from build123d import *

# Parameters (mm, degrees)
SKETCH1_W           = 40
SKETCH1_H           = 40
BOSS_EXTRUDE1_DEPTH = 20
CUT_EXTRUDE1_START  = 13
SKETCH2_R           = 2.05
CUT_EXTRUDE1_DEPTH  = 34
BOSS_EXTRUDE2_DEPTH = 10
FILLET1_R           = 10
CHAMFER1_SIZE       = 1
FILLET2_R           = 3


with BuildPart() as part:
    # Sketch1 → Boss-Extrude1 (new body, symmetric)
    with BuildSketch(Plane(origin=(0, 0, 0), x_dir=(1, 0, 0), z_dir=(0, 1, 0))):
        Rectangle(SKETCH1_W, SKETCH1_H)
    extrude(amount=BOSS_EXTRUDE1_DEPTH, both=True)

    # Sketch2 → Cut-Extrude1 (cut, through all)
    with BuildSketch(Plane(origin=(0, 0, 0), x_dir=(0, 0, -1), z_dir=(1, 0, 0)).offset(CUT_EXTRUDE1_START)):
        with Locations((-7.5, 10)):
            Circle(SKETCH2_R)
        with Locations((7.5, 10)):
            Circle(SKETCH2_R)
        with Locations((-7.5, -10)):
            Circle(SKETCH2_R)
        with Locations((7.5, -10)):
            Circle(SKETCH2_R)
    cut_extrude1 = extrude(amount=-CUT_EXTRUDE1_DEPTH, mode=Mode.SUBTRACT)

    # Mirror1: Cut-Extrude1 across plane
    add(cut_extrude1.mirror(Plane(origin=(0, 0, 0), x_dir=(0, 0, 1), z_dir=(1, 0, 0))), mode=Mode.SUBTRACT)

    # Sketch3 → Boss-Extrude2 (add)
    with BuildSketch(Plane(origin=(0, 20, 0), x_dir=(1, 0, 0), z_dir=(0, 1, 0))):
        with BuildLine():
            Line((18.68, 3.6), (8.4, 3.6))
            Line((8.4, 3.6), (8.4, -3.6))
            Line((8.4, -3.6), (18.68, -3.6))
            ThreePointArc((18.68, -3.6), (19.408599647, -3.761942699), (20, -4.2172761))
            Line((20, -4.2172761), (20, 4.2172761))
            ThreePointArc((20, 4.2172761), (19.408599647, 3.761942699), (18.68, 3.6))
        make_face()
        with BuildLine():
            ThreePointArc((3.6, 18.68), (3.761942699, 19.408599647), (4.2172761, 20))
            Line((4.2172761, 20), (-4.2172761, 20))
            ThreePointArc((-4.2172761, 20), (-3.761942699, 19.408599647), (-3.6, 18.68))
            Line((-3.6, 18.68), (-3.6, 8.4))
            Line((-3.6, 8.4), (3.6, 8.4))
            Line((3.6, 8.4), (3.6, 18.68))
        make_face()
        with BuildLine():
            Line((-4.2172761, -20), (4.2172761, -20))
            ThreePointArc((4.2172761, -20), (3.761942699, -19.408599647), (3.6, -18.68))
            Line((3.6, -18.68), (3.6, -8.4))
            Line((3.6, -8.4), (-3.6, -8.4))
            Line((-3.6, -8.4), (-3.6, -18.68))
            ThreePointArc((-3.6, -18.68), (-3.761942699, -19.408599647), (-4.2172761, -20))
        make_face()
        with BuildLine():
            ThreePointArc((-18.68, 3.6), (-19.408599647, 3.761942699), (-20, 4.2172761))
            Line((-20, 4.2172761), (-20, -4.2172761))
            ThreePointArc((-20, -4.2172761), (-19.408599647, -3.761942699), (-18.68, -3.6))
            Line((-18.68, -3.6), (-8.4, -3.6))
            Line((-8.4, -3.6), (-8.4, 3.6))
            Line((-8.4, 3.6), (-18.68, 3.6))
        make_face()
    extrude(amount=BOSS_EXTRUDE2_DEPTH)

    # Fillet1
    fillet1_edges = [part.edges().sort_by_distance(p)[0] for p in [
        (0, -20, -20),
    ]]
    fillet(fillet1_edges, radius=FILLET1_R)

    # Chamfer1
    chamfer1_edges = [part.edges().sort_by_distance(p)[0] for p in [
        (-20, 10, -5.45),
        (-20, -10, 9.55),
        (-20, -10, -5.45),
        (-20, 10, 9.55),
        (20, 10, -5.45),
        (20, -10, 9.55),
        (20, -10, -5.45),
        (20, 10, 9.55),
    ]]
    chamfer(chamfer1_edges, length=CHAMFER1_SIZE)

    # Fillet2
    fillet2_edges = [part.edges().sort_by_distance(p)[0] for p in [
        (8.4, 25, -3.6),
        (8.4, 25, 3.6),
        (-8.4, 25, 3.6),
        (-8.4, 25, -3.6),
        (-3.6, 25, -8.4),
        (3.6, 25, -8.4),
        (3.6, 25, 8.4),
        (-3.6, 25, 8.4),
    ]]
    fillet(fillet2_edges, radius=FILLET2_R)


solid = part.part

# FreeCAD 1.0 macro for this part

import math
import FreeCAD as App
import Part
import Sketcher


def edges_at(feature, points):
    """Names of the edges that pass closest to the given points."""
    edges = feature.Shape.Edges
    near = lambda p: min(range(len(edges)), key=lambda i: edges[i].distToShape(Part.Vertex(*p))[0])
    return sorted({f"Edge{near(p) + 1}" for p in points})


def add_polygon(sketch, points):
    """Adds a closed chain of lines whose ends are joined by coincident constraints."""
    first, n = sketch.GeometryCount, len(points)
    for a, b in zip(points, points[1:] + points[:1]):
        sketch.addGeometry(Part.LineSegment(App.Vector(*a, 0), App.Vector(*b, 0)), False)
    for i in range(n):
        sketch.addConstraint(Sketcher.Constraint("Coincident", first + i, 2, first + (i + 1) % n, 1))

doc = App.newDocument("Part")
body = doc.addObject("PartDesign::Body", "Body")

# Sketch on XZ plane
sketch1 = body.newObject("Sketcher::SketchObject", "Sketch")
sketch1.AttachmentSupport = (doc.getObject("XZ_Plane"), [""])
sketch1.MapMode = "FlatFace"
add_polygon(sketch1, [(-20, -20), (-20, 20), (20, 20), (20, -20)])  # lines 0-3
sketch1.addConstraint([
    Sketcher.Constraint("Vertical", 0),
    Sketcher.Constraint("Horizontal", 1),
    Sketcher.Constraint("Vertical", 2),
    Sketcher.Constraint("Horizontal", 3),
    Sketcher.Constraint("Symmetric", 0, 2, 2, 2, -1, 1),
    Sketcher.Constraint("Equal", 3, 0),
    Sketcher.Constraint("DistanceX", 1, 1, 1, 2, 40.0),
])
pad1 = body.newObject("PartDesign::Pad", "Pad")
pad1.Profile = sketch1
pad1.Length = 40
pad1.Midplane = True

# Sketch on YZ plane
sketch2 = body.newObject("Sketcher::SketchObject", "Sketch001")
sketch2.AttachmentSupport = (doc.getObject("YZ_Plane"), [""])
sketch2.MapMode = "FlatFace"
sketch2.AttachmentOffset = App.Placement(App.Vector(0, 0, 13), App.Rotation())
sketch2.addGeometry([
    Part.Circle(App.Vector(10, 7.5, 0), App.Vector(0, 0, 1), 2),
    Part.Circle(App.Vector(10, -7.5, 0), App.Vector(0, 0, 1), 2),
    Part.Circle(App.Vector(-10, 7.5, 0), App.Vector(0, 0, 1), 2),
    Part.Circle(App.Vector(-10, -7.5, 0), App.Vector(0, 0, 1), 2),
], False)
sketch2.addConstraint([
    Sketcher.Constraint("Equal", 0, 1),
    Sketcher.Constraint("Equal", 1, 2),
    Sketcher.Constraint("Equal", 2, 3),
    Sketcher.Constraint("Symmetric", 1, 3, 2, 3, -1, 1),
    Sketcher.Constraint("Symmetric", 0, 3, 3, 3, -1, 1),
    Sketcher.Constraint("Symmetric", 0, 3, 2, 3, -2),
    Sketcher.Constraint("Diameter", 0, 4.1),
    Sketcher.Constraint("DistanceX", -1, 1, 0, 3, 10.0),
    Sketcher.Constraint("DistanceY", 1, 3, 0, 3, 15.0),
])
pocket1 = body.newObject("PartDesign::Pocket", "Pocket")
pocket1.Profile = sketch2
pocket1.Type = "ThroughAll"
doc.recompute()

mirrored = body.newObject("PartDesign::Mirrored", "Mirrored")
mirrored.Originals = [pocket1]
mirrored.MirrorPlane = (doc.getObject("YZ_Plane"), [""])
body.Tip = mirrored

# Sketch on XZ plane
sketch3 = body.newObject("Sketcher::SketchObject", "Sketch002")
sketch3.AttachmentSupport = (doc.getObject("XZ_Plane"), [""])
sketch3.MapMode = "FlatFace"
sketch3.AttachmentOffset = App.Placement(App.Vector(0, 0, -20), App.Rotation())
sketch3.addGeometry([
    Part.LineSegment(App.Vector(18.7, -3.6, 0), App.Vector(8.4, -3.6, 0)),  # 0
    Part.LineSegment(App.Vector(8.4, -3.6, 0), App.Vector(8.4, 3.6, 0)),  # 1
    Part.LineSegment(App.Vector(8.4, 3.6, 0), App.Vector(18.7, 3.6, 0)),  # 2
    Part.ArcOfCircle(Part.Circle(App.Vector(18.7, 5.3, 0), App.Vector(0, 0, 1), 1.7), math.radians(-90), math.radians(-40)),  # 3
    Part.LineSegment(App.Vector(20, 4.2, 0), App.Vector(20, -4.2, 0)),  # 4
    Part.ArcOfCircle(Part.Circle(App.Vector(18.7, -5.3, 0), App.Vector(0, 0, 1), 1.7), math.radians(40), math.radians(90)),  # 5
    Part.ArcOfCircle(Part.Circle(App.Vector(5.3, -18.7, 0), App.Vector(0, 0, 1), 1.7), math.radians(-180), math.radians(-130)),  # 6
    Part.LineSegment(App.Vector(4.2, -20, 0), App.Vector(-4.2, -20, 0)),  # 7
    Part.ArcOfCircle(Part.Circle(App.Vector(-5.3, -18.7, 0), App.Vector(0, 0, 1), 1.7), math.radians(-50), math.radians(0)),  # 8
    Part.LineSegment(App.Vector(-3.6, -18.7, 0), App.Vector(-3.6, -8.4, 0)),  # 9
    Part.LineSegment(App.Vector(-3.6, -8.4, 0), App.Vector(3.6, -8.4, 0)),  # 10
    Part.LineSegment(App.Vector(3.6, -8.4, 0), App.Vector(3.6, -18.7, 0)),  # 11
    Part.LineSegment(App.Vector(-4.2, 20, 0), App.Vector(4.2, 20, 0)),  # 12
    Part.ArcOfCircle(Part.Circle(App.Vector(5.3, 18.7, 0), App.Vector(0, 0, 1), 1.7), math.radians(130), math.radians(180)),  # 13
    Part.LineSegment(App.Vector(3.6, 18.7, 0), App.Vector(3.6, 8.4, 0)),  # 14
    Part.LineSegment(App.Vector(3.6, 8.4, 0), App.Vector(-3.6, 8.4, 0)),  # 15
    Part.LineSegment(App.Vector(-3.6, 8.4, 0), App.Vector(-3.6, 18.7, 0)),  # 16
    Part.ArcOfCircle(Part.Circle(App.Vector(-5.3, 18.7, 0), App.Vector(0, 0, 1), 1.7), math.radians(0), math.radians(50)),  # 17
    Part.ArcOfCircle(Part.Circle(App.Vector(-18.7, -5.3, 0), App.Vector(0, 0, 1), 1.7), math.radians(90), math.radians(140)),  # 18
    Part.LineSegment(App.Vector(-20, -4.2, 0), App.Vector(-20, 4.2, 0)),  # 19
    Part.ArcOfCircle(Part.Circle(App.Vector(-18.7, 5.3, 0), App.Vector(0, 0, 1), 1.7), math.radians(-140), math.radians(-90)),  # 20
    Part.LineSegment(App.Vector(-18.7, 3.6, 0), App.Vector(-8.4, 3.6, 0)),  # 21
    Part.LineSegment(App.Vector(-8.4, 3.6, 0), App.Vector(-8.4, -3.6, 0)),  # 22
    Part.LineSegment(App.Vector(-8.4, -3.6, 0), App.Vector(-18.7, -3.6, 0)),  # 23
], False)
sketch3.addConstraint([
    Sketcher.Constraint("Coincident", 0, 2, 1, 1),
    Sketcher.Constraint("Coincident", 1, 2, 2, 1),
    Sketcher.Constraint("Tangent", 2, 2, 3, 1),
    Sketcher.Constraint("Coincident", 3, 2, 4, 1),
    Sketcher.Constraint("Coincident", 4, 2, 5, 1),
    Sketcher.Constraint("Tangent", 5, 2, 0, 1),
    Sketcher.Constraint("Coincident", 6, 2, 7, 1),
    Sketcher.Constraint("Coincident", 7, 2, 8, 1),
    Sketcher.Constraint("Tangent", 8, 2, 9, 1),
    Sketcher.Constraint("Coincident", 9, 2, 10, 1),
    Sketcher.Constraint("Coincident", 10, 2, 11, 1),
    Sketcher.Constraint("Tangent", 11, 2, 6, 1),
    Sketcher.Constraint("Coincident", 12, 2, 13, 1),
    Sketcher.Constraint("Tangent", 13, 2, 14, 1),
    Sketcher.Constraint("Coincident", 14, 2, 15, 1),
    Sketcher.Constraint("Coincident", 15, 2, 16, 1),
    Sketcher.Constraint("Tangent", 16, 2, 17, 1),
    Sketcher.Constraint("Coincident", 17, 2, 12, 1),
    Sketcher.Constraint("Coincident", 18, 2, 19, 1),
    Sketcher.Constraint("Coincident", 19, 2, 20, 1),
    Sketcher.Constraint("Tangent", 20, 2, 21, 1),
    Sketcher.Constraint("Coincident", 21, 2, 22, 1),
    Sketcher.Constraint("Coincident", 22, 2, 23, 1),
    Sketcher.Constraint("Tangent", 23, 2, 18, 1),
    Sketcher.Constraint("Horizontal", 0),
    Sketcher.Constraint("Vertical", 1),
    Sketcher.Constraint("Horizontal", 2),
    Sketcher.Constraint("Vertical", 4),
    Sketcher.Constraint("Horizontal", 7),
    Sketcher.Constraint("Vertical", 9),
    Sketcher.Constraint("Horizontal", 10),
    Sketcher.Constraint("Vertical", 11),
    Sketcher.Constraint("Horizontal", 12),
    Sketcher.Constraint("Vertical", 14),
    Sketcher.Constraint("Horizontal", 15),
    Sketcher.Constraint("Vertical", 16),
    Sketcher.Constraint("Vertical", 19),
    Sketcher.Constraint("Horizontal", 21),
    Sketcher.Constraint("Vertical", 22),
    Sketcher.Constraint("Horizontal", 23),
    Sketcher.Constraint("Equal", 3, 5),
    Sketcher.Constraint("Equal", 5, 6),
    Sketcher.Constraint("Equal", 6, 8),
    Sketcher.Constraint("Equal", 8, 13),
    Sketcher.Constraint("Equal", 13, 17),
    Sketcher.Constraint("Equal", 17, 18),
    Sketcher.Constraint("Equal", 18, 20),
    Sketcher.Constraint("Symmetric", 8, 3, 13, 3, -1, 1),
    Sketcher.Constraint("Symmetric", 6, 3, 17, 3, -1, 1),
    Sketcher.Constraint("Symmetric", 3, 3, 18, 3, -1, 1),
    Sketcher.Constraint("Symmetric", 5, 3, 20, 3, -1, 1),
    Sketcher.Constraint("Symmetric", 6, 3, 8, 3, -2),
    Sketcher.Constraint("Symmetric", 5, 3, 18, 3, -2),
    Sketcher.Constraint("Horizontal", 4, 2, 18, 2),
    Sketcher.Constraint("Vertical", 6, 2, 12, 2),
    Sketcher.Constraint("Equal", 2, 21),
    Sketcher.Constraint("Equal", 15, 1),
    Sketcher.Constraint("Equal", 12, 4),
    Sketcher.Constraint("Equal", 23, 9),
    Sketcher.Constraint("Equal", 11, 14),
    Sketcher.Constraint("Radius", 3, 1.72),
    Sketcher.Constraint("DistanceX", 10, 1, 10, 2, 7.2),
    Sketcher.Constraint("DistanceX", -1, 1, 3, 2, 20.0),
    Sketcher.Constraint("DistanceY", 6, 2, -1, 1, 20.0),
    Sketcher.Constraint("DistanceY", 6, 3, 3, 3, 24.0),
    Sketcher.Constraint("DistanceX", 8, 2, 0, 2, 12.0),
])
pad2 = body.newObject("PartDesign::Pad", "Pad001")
pad2.Profile = sketch3
pad2.Length = 10
pad2.Reversed = True
doc.recompute()

fillet = body.newObject("PartDesign::Fillet", "Fillet")
fillet.Base = (pad2, edges_at(pad2, [(0, -20, -20)]))
fillet.Radius = 10
doc.recompute()

chamfer = body.newObject("PartDesign::Chamfer", "Chamfer")
chamfer.Base = (fillet, edges_at(fillet, [
    (-20, 10, -5.45),
    (-20, -10, 9.55),
    (-20, -10, -5.45),
    (-20, 10, 9.55),
    (20, 10, -5.45),
    (20, -10, 9.55),
    (20, -10, -5.45),
    (20, 10, 9.55),
]))
chamfer.Size = 1
doc.recompute()

fillet2 = body.newObject("PartDesign::Fillet", "Fillet001")
fillet2.Base = (chamfer, edges_at(chamfer, [
    (8.4, 25, -3.6),
    (8.4, 25, 3.6),
    (-8.4, 25, 3.6),
    (-8.4, 25, -3.6),
    (-3.6, 25, -8.4),
    (3.6, 25, -8.4),
    (3.6, 25, 8.4),
    (-3.6, 25, 8.4),
]))
fillet2.Radius = 3

doc.recompute()
